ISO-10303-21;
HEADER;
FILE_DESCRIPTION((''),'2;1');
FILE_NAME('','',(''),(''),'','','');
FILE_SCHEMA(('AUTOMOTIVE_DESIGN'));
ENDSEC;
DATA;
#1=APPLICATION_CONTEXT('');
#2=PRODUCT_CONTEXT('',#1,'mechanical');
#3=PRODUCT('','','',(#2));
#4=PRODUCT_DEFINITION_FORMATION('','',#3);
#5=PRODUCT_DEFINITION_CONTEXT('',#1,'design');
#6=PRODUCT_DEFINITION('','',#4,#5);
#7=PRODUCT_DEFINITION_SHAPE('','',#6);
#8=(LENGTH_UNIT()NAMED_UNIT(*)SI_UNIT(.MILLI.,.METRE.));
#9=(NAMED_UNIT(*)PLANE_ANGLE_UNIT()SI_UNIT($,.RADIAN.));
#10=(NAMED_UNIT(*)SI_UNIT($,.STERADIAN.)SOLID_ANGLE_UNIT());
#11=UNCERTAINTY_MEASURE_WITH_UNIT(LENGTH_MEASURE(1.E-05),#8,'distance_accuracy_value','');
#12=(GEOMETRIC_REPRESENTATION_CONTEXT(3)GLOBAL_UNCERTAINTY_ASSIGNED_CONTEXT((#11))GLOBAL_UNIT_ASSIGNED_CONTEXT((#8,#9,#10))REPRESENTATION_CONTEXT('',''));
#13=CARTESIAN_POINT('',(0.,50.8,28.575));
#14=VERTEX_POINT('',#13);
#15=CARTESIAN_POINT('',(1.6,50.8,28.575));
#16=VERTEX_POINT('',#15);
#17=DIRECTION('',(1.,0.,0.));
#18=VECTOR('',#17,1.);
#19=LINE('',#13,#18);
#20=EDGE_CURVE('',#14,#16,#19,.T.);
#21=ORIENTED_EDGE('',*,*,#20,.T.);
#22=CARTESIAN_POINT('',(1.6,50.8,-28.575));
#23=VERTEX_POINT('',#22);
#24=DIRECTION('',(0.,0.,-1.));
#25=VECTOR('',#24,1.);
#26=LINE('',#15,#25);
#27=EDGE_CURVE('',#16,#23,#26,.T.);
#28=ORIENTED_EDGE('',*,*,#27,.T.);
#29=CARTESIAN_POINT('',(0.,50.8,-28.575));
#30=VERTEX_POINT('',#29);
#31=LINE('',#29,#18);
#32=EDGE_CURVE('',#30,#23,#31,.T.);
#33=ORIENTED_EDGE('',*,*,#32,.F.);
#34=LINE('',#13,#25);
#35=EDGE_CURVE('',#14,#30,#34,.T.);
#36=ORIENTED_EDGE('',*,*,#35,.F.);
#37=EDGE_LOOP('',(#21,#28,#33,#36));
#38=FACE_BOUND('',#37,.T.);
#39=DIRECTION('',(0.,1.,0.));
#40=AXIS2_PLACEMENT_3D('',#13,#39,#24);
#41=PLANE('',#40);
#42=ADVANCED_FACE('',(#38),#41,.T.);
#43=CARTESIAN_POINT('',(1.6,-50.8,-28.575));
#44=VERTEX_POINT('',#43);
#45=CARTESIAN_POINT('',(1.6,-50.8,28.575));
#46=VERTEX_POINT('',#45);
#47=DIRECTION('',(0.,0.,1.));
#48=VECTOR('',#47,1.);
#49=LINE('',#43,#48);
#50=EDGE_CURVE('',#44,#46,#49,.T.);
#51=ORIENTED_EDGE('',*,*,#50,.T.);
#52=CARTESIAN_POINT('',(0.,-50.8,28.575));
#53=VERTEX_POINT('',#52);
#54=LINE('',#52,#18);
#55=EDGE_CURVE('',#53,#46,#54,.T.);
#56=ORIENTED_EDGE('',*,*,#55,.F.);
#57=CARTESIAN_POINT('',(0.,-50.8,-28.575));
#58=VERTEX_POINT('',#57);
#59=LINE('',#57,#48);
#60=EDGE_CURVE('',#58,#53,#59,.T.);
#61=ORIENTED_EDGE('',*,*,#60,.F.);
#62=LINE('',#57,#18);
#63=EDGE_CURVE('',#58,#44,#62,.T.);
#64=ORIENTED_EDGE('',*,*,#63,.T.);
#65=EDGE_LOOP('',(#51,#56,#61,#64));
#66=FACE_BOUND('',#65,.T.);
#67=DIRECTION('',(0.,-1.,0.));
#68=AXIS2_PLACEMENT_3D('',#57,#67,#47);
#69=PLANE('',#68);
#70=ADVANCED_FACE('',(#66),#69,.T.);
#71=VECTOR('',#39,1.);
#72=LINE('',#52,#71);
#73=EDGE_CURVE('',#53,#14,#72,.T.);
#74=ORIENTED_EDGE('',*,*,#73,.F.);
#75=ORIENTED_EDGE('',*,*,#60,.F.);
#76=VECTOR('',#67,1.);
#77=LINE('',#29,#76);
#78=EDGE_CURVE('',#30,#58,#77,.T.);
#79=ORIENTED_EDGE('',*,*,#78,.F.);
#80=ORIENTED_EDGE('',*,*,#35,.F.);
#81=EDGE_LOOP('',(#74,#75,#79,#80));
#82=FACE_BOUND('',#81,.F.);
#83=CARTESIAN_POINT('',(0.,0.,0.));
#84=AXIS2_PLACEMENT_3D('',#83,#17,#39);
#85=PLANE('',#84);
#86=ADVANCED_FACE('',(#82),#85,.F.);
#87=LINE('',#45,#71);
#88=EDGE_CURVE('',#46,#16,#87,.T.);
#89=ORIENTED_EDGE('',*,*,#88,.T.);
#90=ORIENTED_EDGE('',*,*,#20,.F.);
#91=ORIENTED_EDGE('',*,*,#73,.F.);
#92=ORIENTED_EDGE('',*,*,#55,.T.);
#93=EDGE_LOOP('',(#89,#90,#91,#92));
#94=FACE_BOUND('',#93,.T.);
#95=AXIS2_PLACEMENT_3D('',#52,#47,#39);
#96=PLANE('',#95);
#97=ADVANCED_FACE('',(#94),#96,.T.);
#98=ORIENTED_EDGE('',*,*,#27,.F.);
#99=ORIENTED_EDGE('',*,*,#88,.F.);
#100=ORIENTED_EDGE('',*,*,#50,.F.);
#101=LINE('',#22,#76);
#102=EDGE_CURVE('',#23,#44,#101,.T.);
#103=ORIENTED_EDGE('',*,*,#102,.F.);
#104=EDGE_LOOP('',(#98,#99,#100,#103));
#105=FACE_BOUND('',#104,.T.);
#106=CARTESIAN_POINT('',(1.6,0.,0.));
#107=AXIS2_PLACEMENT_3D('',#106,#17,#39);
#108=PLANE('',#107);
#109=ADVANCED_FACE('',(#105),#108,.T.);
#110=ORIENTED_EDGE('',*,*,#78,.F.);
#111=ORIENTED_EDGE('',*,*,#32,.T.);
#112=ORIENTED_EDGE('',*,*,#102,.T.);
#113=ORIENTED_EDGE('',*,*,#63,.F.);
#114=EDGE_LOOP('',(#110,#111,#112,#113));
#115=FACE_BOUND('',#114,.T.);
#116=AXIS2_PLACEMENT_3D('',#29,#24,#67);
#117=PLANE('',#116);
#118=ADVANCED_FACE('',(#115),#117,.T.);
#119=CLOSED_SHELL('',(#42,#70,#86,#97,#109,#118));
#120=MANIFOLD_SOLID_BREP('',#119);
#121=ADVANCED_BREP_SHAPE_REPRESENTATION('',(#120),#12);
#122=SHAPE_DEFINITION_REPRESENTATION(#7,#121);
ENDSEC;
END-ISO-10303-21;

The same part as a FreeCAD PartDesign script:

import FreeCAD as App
import Part
import Sketcher
Q = App.Units.Quantity


def add_polygon(sketch, points):
    """Adds a closed chain of lines whose ends are joined by coincident constraints."""
    first, n = sketch.GeometryCount, len(points)
    for a, b in zip(points, points[1:] + points[:1]):
        sketch.addGeometry(Part.LineSegment(App.Vector(*a, 0), App.Vector(*b, 0)), False)
    for i in range(n):
        sketch.addConstraint(Sketcher.Constraint("Coincident", first + i, 2, first + (i + 1) % n, 1))

doc = App.newDocument("Part")
body = doc.addObject("PartDesign::Body", "Body")

# Sketch on YZ plane
sketch1 = body.newObject("Sketcher::SketchObject", "Sketch")
sketch1.AttachmentSupport = (doc.getObject("YZ_Plane"), [""])
sketch1.MapMode = "FlatFace"
add_polygon(sketch1, [(51, 29), (-51, 29), (-51, -29), (51, -29)])  # lines 0-3
sketch1.addConstraint([
    Sketcher.Constraint("Horizontal", 0),
    Sketcher.Constraint("Vertical", 1),
    Sketcher.Constraint("Horizontal", 2),
    Sketcher.Constraint("Vertical", 3),
    Sketcher.Constraint("Symmetric", 0, 2, 2, 2, -1, 1),
    Sketcher.Constraint("DistanceX", 0, 2, 0, 1, Q("4 in")),
    Sketcher.Constraint("DistanceY", 1, 2, 1, 1, Q("2.25 in")),
])
pad1 = body.newObject("PartDesign::Pad", "Pad")
pad1.Profile = sketch1
pad1.Length = Q("0.0629921 in")

doc.recompute()
